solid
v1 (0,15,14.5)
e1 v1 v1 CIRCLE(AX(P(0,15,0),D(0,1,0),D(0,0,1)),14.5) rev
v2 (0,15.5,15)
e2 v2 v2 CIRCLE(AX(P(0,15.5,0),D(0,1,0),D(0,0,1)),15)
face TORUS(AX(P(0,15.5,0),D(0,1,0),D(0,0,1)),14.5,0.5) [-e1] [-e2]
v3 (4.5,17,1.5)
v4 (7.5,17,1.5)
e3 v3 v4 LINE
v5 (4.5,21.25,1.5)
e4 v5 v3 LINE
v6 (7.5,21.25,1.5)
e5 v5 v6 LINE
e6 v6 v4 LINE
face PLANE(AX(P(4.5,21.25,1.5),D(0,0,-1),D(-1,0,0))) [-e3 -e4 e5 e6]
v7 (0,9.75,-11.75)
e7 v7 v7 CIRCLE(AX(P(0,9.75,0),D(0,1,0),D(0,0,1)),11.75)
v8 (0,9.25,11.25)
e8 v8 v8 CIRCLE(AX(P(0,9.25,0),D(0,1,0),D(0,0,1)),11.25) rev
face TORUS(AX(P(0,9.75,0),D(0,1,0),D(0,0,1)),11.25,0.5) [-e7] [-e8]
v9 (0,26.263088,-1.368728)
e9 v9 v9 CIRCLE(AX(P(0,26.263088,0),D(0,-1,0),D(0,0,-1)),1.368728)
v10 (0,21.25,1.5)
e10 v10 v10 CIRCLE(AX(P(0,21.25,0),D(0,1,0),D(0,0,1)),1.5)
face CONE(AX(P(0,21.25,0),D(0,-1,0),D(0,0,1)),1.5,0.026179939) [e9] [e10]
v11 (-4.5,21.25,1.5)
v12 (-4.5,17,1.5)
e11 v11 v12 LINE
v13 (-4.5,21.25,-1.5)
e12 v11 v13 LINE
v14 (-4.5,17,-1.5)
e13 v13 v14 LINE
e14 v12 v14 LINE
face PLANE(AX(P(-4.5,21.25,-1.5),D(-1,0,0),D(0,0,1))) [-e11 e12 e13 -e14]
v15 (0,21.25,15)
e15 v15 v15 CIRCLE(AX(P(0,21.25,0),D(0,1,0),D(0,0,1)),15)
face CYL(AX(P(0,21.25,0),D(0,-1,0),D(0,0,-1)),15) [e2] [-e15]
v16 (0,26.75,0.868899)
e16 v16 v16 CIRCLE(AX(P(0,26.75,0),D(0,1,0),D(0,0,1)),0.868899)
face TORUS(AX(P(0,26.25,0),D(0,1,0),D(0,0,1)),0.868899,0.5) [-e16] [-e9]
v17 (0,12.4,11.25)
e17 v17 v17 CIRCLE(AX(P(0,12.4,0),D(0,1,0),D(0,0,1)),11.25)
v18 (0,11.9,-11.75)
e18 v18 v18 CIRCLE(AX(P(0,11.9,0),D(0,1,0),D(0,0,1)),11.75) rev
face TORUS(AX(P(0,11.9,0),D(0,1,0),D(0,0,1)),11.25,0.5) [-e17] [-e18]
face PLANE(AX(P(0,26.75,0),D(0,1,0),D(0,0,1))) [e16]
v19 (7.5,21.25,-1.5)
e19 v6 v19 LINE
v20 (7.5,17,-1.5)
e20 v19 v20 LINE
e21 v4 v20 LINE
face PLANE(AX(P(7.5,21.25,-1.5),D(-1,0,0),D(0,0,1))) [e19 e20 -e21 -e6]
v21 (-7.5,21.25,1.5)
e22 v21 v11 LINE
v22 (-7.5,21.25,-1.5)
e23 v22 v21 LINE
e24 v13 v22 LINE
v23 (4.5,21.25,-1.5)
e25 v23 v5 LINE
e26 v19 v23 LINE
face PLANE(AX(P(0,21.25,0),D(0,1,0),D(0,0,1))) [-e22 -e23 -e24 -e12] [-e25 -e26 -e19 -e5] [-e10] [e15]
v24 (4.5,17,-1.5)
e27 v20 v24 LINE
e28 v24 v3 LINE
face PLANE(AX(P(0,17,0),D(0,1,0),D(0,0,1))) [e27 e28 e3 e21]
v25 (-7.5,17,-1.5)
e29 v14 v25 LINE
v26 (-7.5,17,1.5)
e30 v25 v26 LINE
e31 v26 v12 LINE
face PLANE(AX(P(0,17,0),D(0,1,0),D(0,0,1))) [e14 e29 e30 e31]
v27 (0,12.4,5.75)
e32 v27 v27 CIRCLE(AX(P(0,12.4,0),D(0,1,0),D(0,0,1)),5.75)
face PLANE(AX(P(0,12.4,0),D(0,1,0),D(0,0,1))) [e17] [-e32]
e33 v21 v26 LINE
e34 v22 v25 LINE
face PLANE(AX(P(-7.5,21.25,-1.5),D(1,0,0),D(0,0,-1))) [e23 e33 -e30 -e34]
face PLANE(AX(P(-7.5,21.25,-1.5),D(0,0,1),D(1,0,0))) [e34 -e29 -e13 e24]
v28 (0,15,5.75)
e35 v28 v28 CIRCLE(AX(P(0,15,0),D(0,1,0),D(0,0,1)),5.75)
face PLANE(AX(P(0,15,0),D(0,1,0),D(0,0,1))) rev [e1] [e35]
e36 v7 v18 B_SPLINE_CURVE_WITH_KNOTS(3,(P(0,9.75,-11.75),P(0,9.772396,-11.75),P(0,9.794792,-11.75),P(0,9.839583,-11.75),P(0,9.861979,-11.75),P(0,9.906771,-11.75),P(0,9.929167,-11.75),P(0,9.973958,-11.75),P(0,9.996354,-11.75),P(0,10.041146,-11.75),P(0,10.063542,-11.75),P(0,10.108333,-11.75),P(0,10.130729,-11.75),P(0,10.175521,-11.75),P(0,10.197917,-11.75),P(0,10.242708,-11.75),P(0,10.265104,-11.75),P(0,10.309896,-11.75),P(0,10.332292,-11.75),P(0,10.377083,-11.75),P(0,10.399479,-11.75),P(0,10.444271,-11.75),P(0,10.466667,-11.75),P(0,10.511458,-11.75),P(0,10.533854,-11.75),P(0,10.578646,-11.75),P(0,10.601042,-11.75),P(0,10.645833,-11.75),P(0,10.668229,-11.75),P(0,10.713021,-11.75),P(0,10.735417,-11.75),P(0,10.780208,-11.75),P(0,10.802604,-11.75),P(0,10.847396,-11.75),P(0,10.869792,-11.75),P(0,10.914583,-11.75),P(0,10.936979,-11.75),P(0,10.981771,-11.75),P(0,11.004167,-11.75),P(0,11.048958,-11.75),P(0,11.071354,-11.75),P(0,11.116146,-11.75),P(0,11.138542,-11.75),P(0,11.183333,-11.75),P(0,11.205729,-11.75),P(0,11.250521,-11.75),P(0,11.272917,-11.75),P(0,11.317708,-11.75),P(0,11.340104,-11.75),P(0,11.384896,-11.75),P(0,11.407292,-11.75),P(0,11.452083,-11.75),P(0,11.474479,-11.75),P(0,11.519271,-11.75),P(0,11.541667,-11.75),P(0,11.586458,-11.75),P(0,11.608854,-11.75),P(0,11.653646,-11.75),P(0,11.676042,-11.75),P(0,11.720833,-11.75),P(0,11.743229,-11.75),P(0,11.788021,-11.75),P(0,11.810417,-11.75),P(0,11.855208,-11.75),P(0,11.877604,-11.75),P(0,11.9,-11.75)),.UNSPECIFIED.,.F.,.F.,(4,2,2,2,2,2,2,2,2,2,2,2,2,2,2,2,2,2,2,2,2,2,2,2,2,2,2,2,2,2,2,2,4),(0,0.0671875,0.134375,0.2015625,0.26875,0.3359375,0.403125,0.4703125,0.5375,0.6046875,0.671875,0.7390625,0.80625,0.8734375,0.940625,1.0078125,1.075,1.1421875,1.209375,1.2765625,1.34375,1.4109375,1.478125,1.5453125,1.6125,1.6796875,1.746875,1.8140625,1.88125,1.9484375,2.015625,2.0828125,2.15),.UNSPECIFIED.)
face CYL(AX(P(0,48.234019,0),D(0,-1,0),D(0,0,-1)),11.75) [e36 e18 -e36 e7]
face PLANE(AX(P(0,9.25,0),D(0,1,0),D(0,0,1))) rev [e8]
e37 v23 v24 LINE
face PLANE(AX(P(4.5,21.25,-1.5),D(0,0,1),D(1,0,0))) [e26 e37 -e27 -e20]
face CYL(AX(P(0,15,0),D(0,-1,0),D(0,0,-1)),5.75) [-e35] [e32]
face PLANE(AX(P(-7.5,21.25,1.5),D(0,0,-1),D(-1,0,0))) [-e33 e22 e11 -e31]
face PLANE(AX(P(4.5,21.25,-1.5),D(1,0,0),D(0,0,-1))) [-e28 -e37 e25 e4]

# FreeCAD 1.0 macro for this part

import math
import FreeCAD as App
import Part
import Sketcher

V = App.Vector


def edges_at(feature, points):
    """Names of the edges that pass closest to the given points."""
    edges = feature.Shape.Edges
    near = lambda p: min(range(len(edges)), key=lambda i: edges[i].distToShape(Part.Vertex(*p))[0])
    return sorted({f"Edge{near(p) + 1}" for p in points})

doc = App.newDocument("Part")
body = doc.addObject("PartDesign::Body", "Body")

# Sketch on XZ plane
sketch1 = body.newObject("Sketcher::SketchObject", "Sketch")
sketch1.AttachmentSupport = (doc.getObject("XZ_Plane"), [""])
sketch1.MapMode = "FlatFace"
sketch1.addGeometry(Part.Circle(V(0, 0, 0), V(0, 0, 1), 6), False)
sketch1.addConstraint(Sketcher.Constraint("Coincident", 0, 3, -1, 1))
sketch1.addConstraint(Sketcher.Constraint("Diameter", 0, 11.5))
pad1 = body.newObject("PartDesign::Pad", "Pad")
pad1.Profile = sketch1
pad1.Length = 15
pad1.Reversed = True

# Sketch on XZ plane
sketch2 = body.newObject("Sketcher::SketchObject", "Sketch001")
sketch2.AttachmentSupport = (doc.getObject("XZ_Plane"), [""])
sketch2.MapMode = "FlatFace"
sketch2.AttachmentOffset = App.Placement(V(0, 0, -15), App.Rotation())
sketch2.addGeometry(Part.Circle(V(0, 0, 0), V(0, 0, 1), 6), False)
sketch2.addConstraint(Sketcher.Constraint("Coincident", 0, 3, -1, 1))
sketch2.addConstraint(Sketcher.Constraint("Diameter", 0, 11.5))
pad2 = body.newObject("PartDesign::Pad", "Pad001")
pad2.Profile = sketch2
pad2.Length = 2
pad2.Reversed = True

# Sketch on XZ plane
sketch3 = body.newObject("Sketcher::SketchObject", "Sketch002")
sketch3.AttachmentSupport = (doc.getObject("XZ_Plane"), [""])
sketch3.MapMode = "FlatFace"
sketch3.AttachmentOffset = App.Placement(V(0, 0, -17), App.Rotation())
sketch3.addGeometry(Part.Circle(V(0, 0, 0), V(0, 0, 1), 15), False)
sketch3.addGeometry(Part.LineSegment(V(-4.5, 1.5, 0), V(-7.5, 1.5, 0)), False)
sketch3.addGeometry(Part.LineSegment(V(-7.5, 1.5, 0), V(-7.5, -1.5, 0)), False)
sketch3.addGeometry(Part.LineSegment(V(-7.5, -1.5, 0), V(-4.5, -1.5, 0)), False)
sketch3.addGeometry(Part.LineSegment(V(-4.5, -1.5, 0), V(-4.5, 1.5, 0)), False)
sketch3.addGeometry(Part.LineSegment(V(7.5, 1.5, 0), V(4.5, 1.5, 0)), False)
sketch3.addGeometry(Part.LineSegment(V(4.5, 1.5, 0), V(4.5, -1.5, 0)), False)
sketch3.addGeometry(Part.LineSegment(V(4.5, -1.5, 0), V(7.5, -1.5, 0)), False)
sketch3.addGeometry(Part.LineSegment(V(7.5, -1.5, 0), V(7.5, 1.5, 0)), False)
sketch3.addConstraint(Sketcher.Constraint("Coincident", 1, 2, 2, 1))
sketch3.addConstraint(Sketcher.Constraint("Coincident", 2, 2, 3, 1))
sketch3.addConstraint(Sketcher.Constraint("Coincident", 3, 2, 4, 1))
sketch3.addConstraint(Sketcher.Constraint("Coincident", 4, 2, 1, 1))
sketch3.addConstraint(Sketcher.Constraint("Coincident", 5, 2, 6, 1))
sketch3.addConstraint(Sketcher.Constraint("Coincident", 6, 2, 7, 1))
sketch3.addConstraint(Sketcher.Constraint("Coincident", 7, 2, 8, 1))
sketch3.addConstraint(Sketcher.Constraint("Coincident", 8, 2, 5, 1))
sketch3.addConstraint(Sketcher.Constraint("Horizontal", 1))
sketch3.addConstraint(Sketcher.Constraint("Vertical", 2))
sketch3.addConstraint(Sketcher.Constraint("Horizontal", 3))
sketch3.addConstraint(Sketcher.Constraint("Vertical", 4))
sketch3.addConstraint(Sketcher.Constraint("Horizontal", 5))
sketch3.addConstraint(Sketcher.Constraint("Vertical", 6))
sketch3.addConstraint(Sketcher.Constraint("Horizontal", 7))
sketch3.addConstraint(Sketcher.Constraint("Vertical", 8))
sketch3.addConstraint(Sketcher.Constraint("Coincident", 0, 3, -1, 1))
sketch3.addConstraint(Sketcher.Constraint("Symmetric", 3, 2, 5, 2, -1, 1))
sketch3.addConstraint(Sketcher.Constraint("Symmetric", 1, 2, 7, 2, -1, 1))
sketch3.addConstraint(Sketcher.Constraint("Horizontal", 4, 2, 5, 2))
sketch3.addConstraint(Sketcher.Constraint("Equal", 7, 2))
sketch3.addConstraint(Sketcher.Constraint("Diameter", 0, 30.0))
sketch3.addConstraint(Sketcher.Constraint("DistanceX", 1, 2, 1, 1, 3.0))
sketch3.addConstraint(Sketcher.Constraint("DistanceX", 4, 2, 5, 2, 9.0))
pad3 = body.newObject("PartDesign::Pad", "Pad002")
pad3.Profile = sketch3
pad3.Length = 4.25
pad3.Reversed = True

# Sketch on XZ plane
sketch4 = body.newObject("Sketcher::SketchObject", "Sketch003")
sketch4.AttachmentSupport = (doc.getObject("XZ_Plane"), [""])
sketch4.MapMode = "FlatFace"
sketch4.AttachmentOffset = App.Placement(V(0, 0, -21.25), App.Rotation())
sketch4.addGeometry(Part.Circle(V(0, 0, 0), V(0, 0, 1), 1.5), False)
sketch4.addConstraint(Sketcher.Constraint("Coincident", 0, 3, -1, 1))
sketch4.addConstraint(Sketcher.Constraint("Diameter", 0, 3.0))
pad4 = body.newObject("PartDesign::Pad", "Pad003")
pad4.Profile = sketch4
pad4.Length = 5.5
pad4.Reversed = True
pad4.TaperAngle = -1.5
doc.recompute()

fillet = body.newObject("PartDesign::Fillet", "Fillet")
fillet.Base = (pad4, edges_at(pad4, [(-1.356, 26.75, 0)]))
fillet.Radius = 0.5

# Sketch on XZ plane
sketch5 = body.newObject("Sketcher::SketchObject", "Sketch004")
sketch5.AttachmentSupport = (doc.getObject("XZ_Plane"), [""])
sketch5.MapMode = "FlatFace"
sketch5.AttachmentOffset = App.Placement(V(0, 0, -15), App.Rotation())
sketch5.addGeometry(Part.Circle(V(0, 0, 0), V(0, 0, 1), 15), False)
sketch5.addGeometry(Part.ArcOfCircle(Part.Circle(V(0, 0, 0), V(0, 0, 1), 5.8), math.radians(15), math.radians(165)), False)
sketch5.addGeometry(Part.ArcOfCircle(Part.Circle(V(0, 0, 0), V(0, 0, 1), 5.8), math.radians(165), math.radians(195)), False)
sketch5.addGeometry(Part.ArcOfCircle(Part.Circle(V(0, 0, 0), V(0, 0, 1), 5.8), math.radians(-165), math.radians(-15)), False)
sketch5.addGeometry(Part.ArcOfCircle(Part.Circle(V(0, 0, 0), V(0, 0, 1), 5.8), math.radians(-15.12), math.radians(0)), False)
sketch5.addGeometry(Part.ArcOfCircle(Part.Circle(V(0, 0, 0), V(0, 0, 1), 5.8), math.radians(0), math.radians(15.12)), False)
sketch5.addConstraint(Sketcher.Constraint("Tangent", 1, 2, 2, 1))
sketch5.addConstraint(Sketcher.Constraint("Tangent", 2, 2, 3, 1))
sketch5.addConstraint(Sketcher.Constraint("Tangent", 3, 2, 4, 1))
sketch5.addConstraint(Sketcher.Constraint("Tangent", 4, 2, 5, 1))
sketch5.addConstraint(Sketcher.Constraint("Tangent", 5, 2, 1, 1))
sketch5.addConstraint(Sketcher.Constraint("Coincident", 0, 3, -1, 1))
sketch5.addConstraint(Sketcher.Constraint("Coincident", 1, 3, -1, 1))
sketch5.addConstraint(Sketcher.Constraint("Coincident", 3, 3, -1, 1))
sketch5.addConstraint(Sketcher.Constraint("PointOnObject", 4, 2, -1))
sketch5.addConstraint(Sketcher.Constraint("Horizontal", 2, 2, 3, 2))
sketch5.addConstraint(Sketcher.Constraint("Horizontal", 1, 2, 5, 2))
sketch5.addConstraint(Sketcher.Constraint("Vertical", 1, 2, 2, 2))
sketch5.addConstraint(Sketcher.Constraint("Diameter", 0, 30.0))
sketch5.addConstraint(Sketcher.Constraint("Radius", 1, 5.75))
sketch5.addConstraint(Sketcher.Constraint("DistanceY", 2, 2, 1, 2, 3.0))
pad5 = body.newObject("PartDesign::Pad", "Pad004")
pad5.Profile = sketch5
pad5.Length = 2
pad5.Reversed = True

# Sketch on XZ plane
sketch6 = body.newObject("Sketcher::SketchObject", "Sketch005")
sketch6.AttachmentSupport = (doc.getObject("XZ_Plane"), [""])
sketch6.MapMode = "FlatFace"
sketch6.addGeometry(Part.Circle(V(0, 0, 0), V(0, 0, 1), 12), False)
sketch6.addConstraint(Sketcher.Constraint("Coincident", 0, 3, -1, 1))
sketch6.addConstraint(Sketcher.Constraint("Diameter", 0, 23.5))
pad6 = body.newObject("PartDesign::Pad", "Pad005")
pad6.Profile = sketch6
pad6.Length = 12.4
pad6.Reversed = True

# Sketch on XZ plane
sketch7 = body.newObject("Sketcher::SketchObject", "Sketch006")
sketch7.AttachmentSupport = (doc.getObject("XZ_Plane"), [""])
sketch7.MapMode = "FlatFace"
sketch7.addGeometry(Part.Circle(V(0, 0, 0), V(0, 0, 1), 12), False)
sketch7.addConstraint(Sketcher.Constraint("Coincident", 0, 3, -1, 1))
sketch7.addConstraint(Sketcher.Constraint("Diameter", 0, 23.5))
pocket1 = body.newObject("PartDesign::Pocket", "Pocket")
pocket1.Profile = sketch7
pocket1.Length = 9.25
doc.recompute()

fillet2 = body.newObject("PartDesign::Fillet", "Fillet001")
fillet2.Base = (pocket1, edges_at(pocket1, [(0, 15, -15), (0, 12.4, 11.75), (0, 9.25, 11.75)]))
fillet2.Radius = 0.5

doc.recompute()
